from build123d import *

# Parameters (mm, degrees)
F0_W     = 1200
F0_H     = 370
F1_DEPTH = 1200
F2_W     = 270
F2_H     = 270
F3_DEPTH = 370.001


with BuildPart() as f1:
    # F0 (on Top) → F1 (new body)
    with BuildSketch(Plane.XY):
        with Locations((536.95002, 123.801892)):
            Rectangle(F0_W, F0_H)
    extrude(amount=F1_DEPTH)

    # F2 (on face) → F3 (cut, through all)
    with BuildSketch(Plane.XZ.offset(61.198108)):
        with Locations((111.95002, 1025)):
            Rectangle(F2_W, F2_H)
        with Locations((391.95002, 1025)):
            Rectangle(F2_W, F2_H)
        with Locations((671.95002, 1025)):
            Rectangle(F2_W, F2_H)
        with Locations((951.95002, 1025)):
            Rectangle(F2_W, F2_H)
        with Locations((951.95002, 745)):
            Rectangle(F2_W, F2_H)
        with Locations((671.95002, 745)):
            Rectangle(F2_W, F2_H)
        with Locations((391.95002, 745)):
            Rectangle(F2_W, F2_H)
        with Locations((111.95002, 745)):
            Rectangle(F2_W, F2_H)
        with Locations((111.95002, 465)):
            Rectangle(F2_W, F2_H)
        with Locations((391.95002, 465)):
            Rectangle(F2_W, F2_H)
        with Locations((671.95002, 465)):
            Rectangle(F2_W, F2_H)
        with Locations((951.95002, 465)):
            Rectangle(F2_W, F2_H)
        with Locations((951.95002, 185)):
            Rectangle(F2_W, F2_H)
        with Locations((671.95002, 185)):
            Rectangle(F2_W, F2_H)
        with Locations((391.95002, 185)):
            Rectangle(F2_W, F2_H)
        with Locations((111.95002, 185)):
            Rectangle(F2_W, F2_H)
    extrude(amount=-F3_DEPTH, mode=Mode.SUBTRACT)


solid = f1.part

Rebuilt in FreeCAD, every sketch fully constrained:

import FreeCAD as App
import Part
import Sketcher

V = App.Vector
Q = App.Units.Quantity

doc = App.newDocument("Part")
body = doc.addObject("PartDesign::Body", "Body")

sketch1 = body.newObject("Sketcher::SketchObject", "Sketch")
sketch1.AttachmentSupport = (doc.getObject("XY_Plane"), [""])
sketch1.MapMode = "FlatFace"
sketch1.addGeometry([
    Part.LineSegment(V(-63.04998, 308.801892, 0), V(-63.04998, -61.198108, 0)),
    Part.LineSegment(V(-63.04998, -61.198108, 0), V(1136.95002, -61.198108, 0)),
    Part.LineSegment(V(1136.95002, -61.198108, 0), V(1136.95002, 308.801892, 0)),
    Part.LineSegment(V(1136.95002, 308.801892, 0), V(-63.04998, 308.801892, 0)),
], False)
sketch1.addConstraint([
    Sketcher.Constraint("Coincident", 0, 2, 1, 1),
    Sketcher.Constraint("Coincident", 1, 2, 2, 1),
    Sketcher.Constraint("Coincident", 2, 2, 3, 1),
    Sketcher.Constraint("Coincident", 3, 2, 0, 1),
    Sketcher.Constraint("Vertical", 0),
    Sketcher.Constraint("Horizontal", 1),
    Sketcher.Constraint("Vertical", 2),
    Sketcher.Constraint("Horizontal", 3),
    Sketcher.Constraint("DistanceX", 1, 1, 1, 2, Q("1200 mm")),
    Sketcher.Constraint("DistanceY", 0, 2, 0, 1, Q("370 mm")),
    Sketcher.Constraint("DistanceX", 0, 2, -1, 1, Q("63.04998 mm")),
    Sketcher.Constraint("DistanceY", -1, 1, 2, 2, Q("308.801892 mm")),
])
pad1 = body.newObject("PartDesign::Pad", "Pad")
pad1.Profile = sketch1
pad1.Length = 1200

sketch2 = body.newObject("Sketcher::SketchObject", "Sketch001")
sketch2.AttachmentSupport = (doc.getObject("XZ_Plane"), [""])
sketch2.MapMode = "FlatFace"
sketch2.AttachmentOffset = App.Placement(V(0, 0, 61.198108), App.Rotation())
sketch2.addGeometry([
    Part.LineSegment(V(-23.04998, 1160, 0), V(-23.04998, 890, 0)),
    Part.LineSegment(V(-23.04998, 890, 0), V(246.95002, 890, 0)),
    Part.LineSegment(V(246.95002, 890, 0), V(246.95002, 1160, 0)),
    Part.LineSegment(V(246.95002, 1160, 0), V(-23.04998, 1160, 0)),
    Part.LineSegment(V(256.95002, 1160, 0), V(256.95002, 890, 0)),
    Part.LineSegment(V(256.95002, 890, 0), V(526.95002, 890, 0)),
    Part.LineSegment(V(526.95002, 890, 0), V(526.95002, 1160, 0)),
    Part.LineSegment(V(526.95002, 1160, 0), V(256.95002, 1160, 0)),
    Part.LineSegment(V(536.95002, 1160, 0), V(536.95002, 890, 0)),
    Part.LineSegment(V(536.95002, 890, 0), V(806.95002, 890, 0)),
    Part.LineSegment(V(806.95002, 890, 0), V(806.95002, 1160, 0)),
    Part.LineSegment(V(806.95002, 1160, 0), V(536.95002, 1160, 0)),
    Part.LineSegment(V(816.95002, 1160, 0), V(816.95002, 890, 0)),
    Part.LineSegment(V(816.95002, 890, 0), V(1086.95002, 890, 0)),
    Part.LineSegment(V(1086.95002, 890, 0), V(1086.95002, 1160, 0)),
    Part.LineSegment(V(1086.95002, 1160, 0), V(816.95002, 1160, 0)),
    Part.LineSegment(V(816.95002, 880, 0), V(816.95002, 610, 0)),
    Part.LineSegment(V(816.95002, 610, 0), V(1086.95002, 610, 0)),
    Part.LineSegment(V(1086.95002, 610, 0), V(1086.95002, 880, 0)),
    Part.LineSegment(V(1086.95002, 880, 0), V(816.95002, 880, 0)),
    Part.LineSegment(V(536.95002, 880, 0), V(536.95002, 610, 0)),
    Part.LineSegment(V(536.95002, 610, 0), V(806.95002, 610, 0)),
    Part.LineSegment(V(806.95002, 610, 0), V(806.95002, 880, 0)),
    Part.LineSegment(V(806.95002, 880, 0), V(536.95002, 880, 0)),
    Part.LineSegment(V(256.95002, 880, 0), V(256.95002, 610, 0)),
    Part.LineSegment(V(256.95002, 610, 0), V(526.95002, 610, 0)),
    Part.LineSegment(V(526.95002, 610, 0), V(526.95002, 880, 0)),
    Part.LineSegment(V(526.95002, 880, 0), V(256.95002, 880, 0)),
    Part.LineSegment(V(-23.04998, 880, 0), V(-23.04998, 610, 0)),
    Part.LineSegment(V(-23.04998, 610, 0), V(246.95002, 610, 0)),
    Part.LineSegment(V(246.95002, 610, 0), V(246.95002, 880, 0)),
    Part.LineSegment(V(246.95002, 880, 0), V(-23.04998, 880, 0)),
    Part.LineSegment(V(-23.04998, 600, 0), V(-23.04998, 330, 0)),
    Part.LineSegment(V(-23.04998, 330, 0), V(246.95002, 330, 0)),
    Part.LineSegment(V(246.95002, 330, 0), V(246.95002, 600, 0)),
    Part.LineSegment(V(246.95002, 600, 0), V(-23.04998, 600, 0)),
    Part.LineSegment(V(256.95002, 600, 0), V(256.95002, 330, 0)),
    Part.LineSegment(V(256.95002, 330, 0), V(526.95002, 330, 0)),
    Part.LineSegment(V(526.95002, 330, 0), V(526.95002, 600, 0)),
    Part.LineSegment(V(526.95002, 600, 0), V(256.95002, 600, 0)),
    Part.LineSegment(V(536.95002, 600, 0), V(536.95002, 330, 0)),
    Part.LineSegment(V(536.95002, 330, 0), V(806.95002, 330, 0)),
    Part.LineSegment(V(806.95002, 330, 0), V(806.95002, 600, 0)),
    Part.LineSegment(V(806.95002, 600, 0), V(536.95002, 600, 0)),
    Part.LineSegment(V(816.95002, 600, 0), V(816.95002, 330, 0)),
    Part.LineSegment(V(816.95002, 330, 0), V(1086.95002, 330, 0)),
    Part.LineSegment(V(1086.95002, 330, 0), V(1086.95002, 600, 0)),
    Part.LineSegment(V(1086.95002, 600, 0), V(816.95002, 600, 0)),
    Part.LineSegment(V(816.95002, 320, 0), V(816.95002, 50, 0)),
    Part.LineSegment(V(816.95002, 50, 0), V(1086.95002, 50, 0)),
    Part.LineSegment(V(1086.95002, 50, 0), V(1086.95002, 320, 0)),
    Part.LineSegment(V(1086.95002, 320, 0), V(816.95002, 320, 0)),
    Part.LineSegment(V(536.95002, 320, 0), V(536.95002, 50, 0)),
    Part.LineSegment(V(536.95002, 50, 0), V(806.95002, 50, 0)),
    Part.LineSegment(V(806.95002, 50, 0), V(806.95002, 320, 0)),
    Part.LineSegment(V(806.95002, 320, 0), V(536.95002, 320, 0)),
    Part.LineSegment(V(256.95002, 320, 0), V(256.95002, 50, 0)),
    Part.LineSegment(V(256.95002, 50, 0), V(526.95002, 50, 0)),
    Part.LineSegment(V(526.95002, 50, 0), V(526.95002, 320, 0)),
    Part.LineSegment(V(526.95002, 320, 0), V(256.95002, 320, 0)),
    Part.LineSegment(V(-23.04998, 320, 0), V(-23.04998, 50, 0)),
    Part.LineSegment(V(-23.04998, 50, 0), V(246.95002, 50, 0)),
    Part.LineSegment(V(246.95002, 50, 0), V(246.95002, 320, 0)),
    Part.LineSegment(V(246.95002, 320, 0), V(-23.04998, 320, 0)),
], False)
sketch2.addConstraint([
    Sketcher.Constraint("Coincident", 0, 2, 1, 1),
    Sketcher.Constraint("Coincident", 1, 2, 2, 1),
    Sketcher.Constraint("Coincident", 2, 2, 3, 1),
    Sketcher.Constraint("Coincident", 3, 2, 0, 1),
    Sketcher.Constraint("Coincident", 4, 2, 5, 1),
    Sketcher.Constraint("Coincident", 5, 2, 6, 1),
    Sketcher.Constraint("Coincident", 6, 2, 7, 1),
    Sketcher.Constraint("Coincident", 7, 2, 4, 1),
    Sketcher.Constraint("Coincident", 8, 2, 9, 1),
    Sketcher.Constraint("Coincident", 9, 2, 10, 1),
    Sketcher.Constraint("Coincident", 10, 2, 11, 1),
    Sketcher.Constraint("Coincident", 11, 2, 8, 1),
    Sketcher.Constraint("Coincident", 12, 2, 13, 1),
    Sketcher.Constraint("Coincident", 13, 2, 14, 1),
    Sketcher.Constraint("Coincident", 14, 2, 15, 1),
    Sketcher.Constraint("Coincident", 15, 2, 12, 1),
    Sketcher.Constraint("Coincident", 16, 2, 17, 1),
    Sketcher.Constraint("Coincident", 17, 2, 18, 1),
    Sketcher.Constraint("Coincident", 18, 2, 19, 1),
    Sketcher.Constraint("Coincident", 19, 2, 16, 1),
    Sketcher.Constraint("Coincident", 20, 2, 21, 1),
    Sketcher.Constraint("Coincident", 21, 2, 22, 1),
    Sketcher.Constraint("Coincident", 22, 2, 23, 1),
    Sketcher.Constraint("Coincident", 23, 2, 20, 1),
    Sketcher.Constraint("Coincident", 24, 2, 25, 1),
    Sketcher.Constraint("Coincident", 25, 2, 26, 1),
    Sketcher.Constraint("Coincident", 26, 2, 27, 1),
    Sketcher.Constraint("Coincident", 27, 2, 24, 1),
    Sketcher.Constraint("Coincident", 28, 2, 29, 1),
    Sketcher.Constraint("Coincident", 29, 2, 30, 1),
    Sketcher.Constraint("Coincident", 30, 2, 31, 1),
    Sketcher.Constraint("Coincident", 31, 2, 28, 1),
    Sketcher.Constraint("Coincident", 32, 2, 33, 1),
    Sketcher.Constraint("Coincident", 33, 2, 34, 1),
    Sketcher.Constraint("Coincident", 34, 2, 35, 1),
    Sketcher.Constraint("Coincident", 35, 2, 32, 1),
    Sketcher.Constraint("Coincident", 36, 2, 37, 1),
    Sketcher.Constraint("Coincident", 37, 2, 38, 1),
    Sketcher.Constraint("Coincident", 38, 2, 39, 1),
    Sketcher.Constraint("Coincident", 39, 2, 36, 1),
    Sketcher.Constraint("Coincident", 40, 2, 41, 1),
    Sketcher.Constraint("Coincident", 41, 2, 42, 1),
    Sketcher.Constraint("Coincident", 42, 2, 43, 1),
    Sketcher.Constraint("Coincident", 43, 2, 40, 1),
    Sketcher.Constraint("Coincident", 44, 2, 45, 1),
    Sketcher.Constraint("Coincident", 45, 2, 46, 1),
    Sketcher.Constraint("Coincident", 46, 2, 47, 1),
    Sketcher.Constraint("Coincident", 47, 2, 44, 1),
    Sketcher.Constraint("Coincident", 48, 2, 49, 1),
    Sketcher.Constraint("Coincident", 49, 2, 50, 1),
    Sketcher.Constraint("Coincident", 50, 2, 51, 1),
    Sketcher.Constraint("Coincident", 51, 2, 48, 1),
    Sketcher.Constraint("Coincident", 52, 2, 53, 1),
    Sketcher.Constraint("Coincident", 53, 2, 54, 1),
    Sketcher.Constraint("Coincident", 54, 2, 55, 1),
    Sketcher.Constraint("Coincident", 55, 2, 52, 1),
    Sketcher.Constraint("Coincident", 56, 2, 57, 1),
    Sketcher.Constraint("Coincident", 57, 2, 58, 1),
    Sketcher.Constraint("Coincident", 58, 2, 59, 1),
    Sketcher.Constraint("Coincident", 59, 2, 56, 1),
    Sketcher.Constraint("Coincident", 60, 2, 61, 1),
    Sketcher.Constraint("Coincident", 61, 2, 62, 1),
    Sketcher.Constraint("Coincident", 62, 2, 63, 1),
    Sketcher.Constraint("Coincident", 63, 2, 60, 1),
    Sketcher.Constraint("Vertical", 0),
    Sketcher.Constraint("Horizontal", 1),
    Sketcher.Constraint("Vertical", 2),
    Sketcher.Constraint("Horizontal", 3),
    Sketcher.Constraint("Vertical", 4),
    Sketcher.Constraint("Horizontal", 5),
    Sketcher.Constraint("Vertical", 6),
    Sketcher.Constraint("Horizontal", 7),
    Sketcher.Constraint("Vertical", 8),
    Sketcher.Constraint("Horizontal", 9),
    Sketcher.Constraint("Vertical", 10),
    Sketcher.Constraint("Horizontal", 11),
    Sketcher.Constraint("Vertical", 12),
    Sketcher.Constraint("Horizontal", 13),
    Sketcher.Constraint("Vertical", 14),
    Sketcher.Constraint("Horizontal", 15),
    Sketcher.Constraint("Vertical", 16),
    Sketcher.Constraint("Horizontal", 17),
    Sketcher.Constraint("Vertical", 18),
    Sketcher.Constraint("Horizontal", 19),
    Sketcher.Constraint("Vertical", 20),
    Sketcher.Constraint("Horizontal", 21),
    Sketcher.Constraint("Vertical", 22),
    Sketcher.Constraint("Horizontal", 23),
    Sketcher.Constraint("Vertical", 24),
    Sketcher.Constraint("Horizontal", 25),
    Sketcher.Constraint("Vertical", 26),
    Sketcher.Constraint("Horizontal", 27),
    Sketcher.Constraint("Vertical", 28),
    Sketcher.Constraint("Horizontal", 29),
    Sketcher.Constraint("Vertical", 30),
    Sketcher.Constraint("Horizontal", 31),
    Sketcher.Constraint("Vertical", 32),
    Sketcher.Constraint("Horizontal", 33),
    Sketcher.Constraint("Vertical", 34),
    Sketcher.Constraint("Horizontal", 35),
    Sketcher.Constraint("Vertical", 36),
    Sketcher.Constraint("Horizontal", 37),
    Sketcher.Constraint("Vertical", 38),
    Sketcher.Constraint("Horizontal", 39),
    Sketcher.Constraint("Vertical", 40),
    Sketcher.Constraint("Horizontal", 41),
    Sketcher.Constraint("Vertical", 42),
    Sketcher.Constraint("Horizontal", 43),
    Sketcher.Constraint("Vertical", 44),
    Sketcher.Constraint("Horizontal", 45),
    Sketcher.Constraint("Vertical", 46),
    Sketcher.Constraint("Horizontal", 47),
    Sketcher.Constraint("Vertical", 48),
    Sketcher.Constraint("Horizontal", 49),
    Sketcher.Constraint("Vertical", 50),
    Sketcher.Constraint("Horizontal", 51),
    Sketcher.Constraint("Vertical", 52),
    Sketcher.Constraint("Horizontal", 53),
    Sketcher.Constraint("Vertical", 54),
    Sketcher.Constraint("Horizontal", 55),
    Sketcher.Constraint("Vertical", 56),
    Sketcher.Constraint("Horizontal", 57),
    Sketcher.Constraint("Vertical", 58),
    Sketcher.Constraint("Horizontal", 59),
    Sketcher.Constraint("Vertical", 60),
    Sketcher.Constraint("Horizontal", 61),
    Sketcher.Constraint("Vertical", 62),
    Sketcher.Constraint("Horizontal", 63),
    Sketcher.Constraint("Horizontal", 1, 2, 4, 2),
    Sketcher.Constraint("Horizontal", 3, 2, 6, 2),
    Sketcher.Constraint("Horizontal", 5, 2, 8, 2),
    Sketcher.Constraint("Horizontal", 7, 2, 10, 2),
    Sketcher.Constraint("Horizontal", 9, 2, 12, 2),
    Sketcher.Constraint("Horizontal", 11, 2, 14, 2),
    Sketcher.Constraint("Horizontal", 17, 2, 20, 2),
    Sketcher.Constraint("Horizontal", 19, 2, 22, 2),
    Sketcher.Constraint("Horizontal", 21, 2, 24, 2),
    Sketcher.Constraint("Horizontal", 23, 2, 26, 2),
    Sketcher.Constraint("Horizontal", 25, 2, 28, 2),
    Sketcher.Constraint("Horizontal", 27, 2, 30, 2),
    Sketcher.Constraint("Horizontal", 33, 2, 36, 2),
    Sketcher.Constraint("Horizontal", 35, 2, 38, 2),
    Sketcher.Constraint("Horizontal", 37, 2, 40, 2),
    Sketcher.Constraint("Horizontal", 39, 2, 42, 2),
    Sketcher.Constraint("Horizontal", 41, 2, 44, 2),
    Sketcher.Constraint("Horizontal", 43, 2, 46, 2),
    Sketcher.Constraint("Horizontal", 49, 2, 52, 2),
    Sketcher.Constraint("Horizontal", 51, 2, 54, 2),
    Sketcher.Constraint("Horizontal", 53, 2, 56, 2),
    Sketcher.Constraint("Horizontal", 55, 2, 58, 2),
    Sketcher.Constraint("Horizontal", 57, 2, 60, 2),
    Sketcher.Constraint("Horizontal", 59, 2, 62, 2),
    Sketcher.Constraint("Vertical", 15, 2, 16, 2),
    Sketcher.Constraint("Vertical", 14, 2, 17, 2),
    Sketcher.Constraint("Vertical", 11, 2, 20, 2),
    Sketcher.Constraint("Vertical", 10, 2, 21, 2),
    Sketcher.Constraint("Vertical", 7, 2, 24, 2),
    Sketcher.Constraint("Vertical", 6, 2, 25, 2),
    Sketcher.Constraint("Vertical", 3, 2, 28, 2),
    Sketcher.Constraint("Vertical", 2, 2, 29, 2),
    Sketcher.Constraint("Vertical", 31, 2, 32, 2),
    Sketcher.Constraint("Vertical", 30, 2, 33, 2),
    Sketcher.Constraint("Vertical", 27, 2, 36, 2),
    Sketcher.Constraint("Vertical", 26, 2, 37, 2),
    Sketcher.Constraint("Vertical", 23, 2, 40, 2),
    Sketcher.Constraint("Vertical", 22, 2, 41, 2),
    Sketcher.Constraint("Vertical", 19, 2, 44, 2),
    Sketcher.Constraint("Vertical", 18, 2, 45, 2),
    Sketcher.Constraint("Vertical", 47, 2, 48, 2),
    Sketcher.Constraint("Vertical", 46, 2, 49, 2),
    Sketcher.Constraint("Vertical", 43, 2, 52, 2),
    Sketcher.Constraint("Vertical", 42, 2, 53, 2),
    Sketcher.Constraint("Vertical", 39, 2, 56, 2),
    Sketcher.Constraint("Vertical", 38, 2, 57, 2),
    Sketcher.Constraint("Vertical", 35, 2, 60, 2),
    Sketcher.Constraint("Vertical", 34, 2, 61, 2),
    Sketcher.Constraint("Equal", 3, 5),
    Sketcher.Constraint("Equal", 7, 9),
    Sketcher.Constraint("Equal", 11, 13),
    Sketcher.Constraint("Equal", 63, 0),
    Sketcher.Constraint("Equal", 14, 16),
    Sketcher.Constraint("Equal", 30, 32),
    Sketcher.Constraint("Equal", 46, 48),
    Sketcher.Constraint("DistanceX", 1, 1, 1, 2, Q("270 mm")),
    Sketcher.Constraint("DistanceY", -1, 1, 0, 2, Q("890 mm")),
    Sketcher.Constraint("DistanceY", -1, 1, 16, 2, Q("610 mm")),
    Sketcher.Constraint("DistanceY", -1, 1, 32, 2, Q("330 mm")),
    Sketcher.Constraint("DistanceY", -1, 1, 48, 2, Q("50 mm")),
    Sketcher.Constraint("DistanceX", 0, 2, -1, 1, Q("23.04998 mm")),
    Sketcher.Constraint("DistanceX", -1, 1, 4, 2, Q("256.95002 mm")),
    Sketcher.Constraint("DistanceX", -1, 1, 8, 2, Q("536.95002 mm")),
    Sketcher.Constraint("DistanceX", -1, 1, 12, 2, Q("816.95002 mm")),
])
pocket1 = body.newObject("PartDesign::Pocket", "Pocket")
pocket1.Profile = sketch2
pocket1.Type = "ThroughAll"

doc.recompute()
